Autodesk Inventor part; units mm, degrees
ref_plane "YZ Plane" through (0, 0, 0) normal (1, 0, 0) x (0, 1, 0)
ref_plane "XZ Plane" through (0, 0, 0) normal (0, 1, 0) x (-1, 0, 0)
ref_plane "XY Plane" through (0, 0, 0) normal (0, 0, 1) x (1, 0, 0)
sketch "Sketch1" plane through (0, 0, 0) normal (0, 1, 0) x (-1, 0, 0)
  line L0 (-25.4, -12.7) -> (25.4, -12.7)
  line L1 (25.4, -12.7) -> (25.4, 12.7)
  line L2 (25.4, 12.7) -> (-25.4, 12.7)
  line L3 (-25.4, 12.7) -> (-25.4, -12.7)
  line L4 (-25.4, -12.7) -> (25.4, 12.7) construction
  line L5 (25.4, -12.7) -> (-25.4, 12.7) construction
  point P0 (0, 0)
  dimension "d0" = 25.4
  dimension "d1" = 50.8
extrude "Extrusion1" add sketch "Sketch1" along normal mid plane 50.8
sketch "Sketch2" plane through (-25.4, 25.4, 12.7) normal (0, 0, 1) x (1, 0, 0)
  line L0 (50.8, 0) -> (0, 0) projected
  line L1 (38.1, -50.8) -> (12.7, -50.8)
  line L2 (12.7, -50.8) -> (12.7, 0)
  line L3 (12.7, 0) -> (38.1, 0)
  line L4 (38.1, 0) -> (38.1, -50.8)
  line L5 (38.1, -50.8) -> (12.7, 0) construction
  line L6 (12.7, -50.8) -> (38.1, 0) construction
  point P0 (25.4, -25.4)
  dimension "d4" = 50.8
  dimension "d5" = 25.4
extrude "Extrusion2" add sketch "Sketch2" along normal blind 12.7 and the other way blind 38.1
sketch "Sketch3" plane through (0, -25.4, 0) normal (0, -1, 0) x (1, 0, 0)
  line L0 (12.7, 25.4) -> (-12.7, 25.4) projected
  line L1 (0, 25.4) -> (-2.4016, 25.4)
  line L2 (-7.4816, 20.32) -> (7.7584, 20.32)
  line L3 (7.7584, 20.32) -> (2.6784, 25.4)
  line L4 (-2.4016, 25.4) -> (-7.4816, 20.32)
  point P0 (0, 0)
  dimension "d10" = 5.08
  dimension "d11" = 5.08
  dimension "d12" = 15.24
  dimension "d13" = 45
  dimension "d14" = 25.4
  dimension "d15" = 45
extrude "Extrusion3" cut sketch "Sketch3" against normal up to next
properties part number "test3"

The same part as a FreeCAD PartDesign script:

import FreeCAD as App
import Part
import Sketcher

V = App.Vector
Q = App.Units.Quantity


def add_polygon(sketch, points):
    """Adds a closed chain of lines whose ends are joined by coincident constraints."""
    first, n = sketch.GeometryCount, len(points)
    for a, b in zip(points, points[1:] + points[:1]):
        sketch.addGeometry(Part.LineSegment(App.Vector(*a, 0), App.Vector(*b, 0)), False)
    for i in range(n):
        sketch.addConstraint(Sketcher.Constraint("Coincident", first + i, 2, first + (i + 1) % n, 1))

doc = App.newDocument("Part")
body = doc.addObject("PartDesign::Body", "Body")

# Sketch on XZ plane
sketch1 = body.newObject("Sketcher::SketchObject", "Sketch")
sketch1.AttachmentSupport = (doc.getObject("XZ_Plane"), [""])
sketch1.MapMode = "FlatFace"
add_polygon(sketch1, [(25, 13), (25, -13), (-25, -13), (-25, 13)])  # lines 0-3
sketch1.addConstraint(Sketcher.Constraint("Vertical", 0))
sketch1.addConstraint(Sketcher.Constraint("Horizontal", 1))
sketch1.addConstraint(Sketcher.Constraint("Vertical", 2))
sketch1.addConstraint(Sketcher.Constraint("Horizontal", 3))
sketch1.addConstraint(Sketcher.Constraint("Symmetric", 0, 2, 2, 2, -1, 1))
sketch1.addConstraint(Sketcher.Constraint("DistanceX", 1, 2, 1, 1, Q("2 in")))
sketch1.addConstraint(Sketcher.Constraint("DistanceY", 0, 2, 0, 1, Q("1 in")))
pad1 = body.newObject("PartDesign::Pad", "Pad")
pad1.Profile = sketch1
pad1.Length = Q("2 in")
pad1.Midplane = True

# Sketch on XY plane
sketch2 = body.newObject("Sketcher::SketchObject", "Sketch001")
sketch2.AttachmentSupport = (doc.getObject("XY_Plane"), [""])
sketch2.MapMode = "FlatFace"
sketch2.AttachmentOffset = App.Placement(V(0, 0, 0.5 * 25.4), App.Rotation())
add_polygon(sketch2, [(13, -25), (13, 25), (-13, 25), (-13, -25)])  # lines 0-3
sketch2.addConstraint(Sketcher.Constraint("Vertical", 0))
sketch2.addConstraint(Sketcher.Constraint("Horizontal", 1))
sketch2.addConstraint(Sketcher.Constraint("Vertical", 2))
sketch2.addConstraint(Sketcher.Constraint("Horizontal", 3))
sketch2.addConstraint(Sketcher.Constraint("Symmetric", 0, 2, 2, 2, -1, 1))
sketch2.addConstraint(Sketcher.Constraint("DistanceX", 1, 2, 1, 1, Q("1 in")))
sketch2.addConstraint(Sketcher.Constraint("DistanceY", 0, 1, 0, 2, Q("2 in")))
pad2 = body.newObject("PartDesign::Pad", "Pad001")
pad2.Profile = sketch2
pad2.Type = "TwoLengths"
pad2.Length = Q("0.5 in")
pad2.Length2 = Q("1.5 in")

# Sketch on XZ plane
sketch3 = body.newObject("Sketcher::SketchObject", "Sketch002")
sketch3.AttachmentSupport = (doc.getObject("XZ_Plane"), [""])
sketch3.MapMode = "FlatFace"
sketch3.AttachmentOffset = App.Placement(V(0, 0, 1 * 25.4), App.Rotation())
add_polygon(sketch3, [(8, 20), (3, 25), (-2, 25), (-7, 20)])  # lines 0-3
sketch3.addConstraint(Sketcher.Constraint("Horizontal", 1))
sketch3.addConstraint(Sketcher.Constraint("Horizontal", 3))
sketch3.addConstraint(Sketcher.Constraint("Perpendicular", 0, 2))
sketch3.addConstraint(Sketcher.Constraint("Equal", 0, 2))
sketch3.addConstraint(Sketcher.Constraint("DistanceX", 1, 2, 1, 1, Q("0.2 in")))
sketch3.addConstraint(Sketcher.Constraint("DistanceX", 3, 1, 3, 2, Q("0.6 in")))
sketch3.addConstraint(Sketcher.Constraint("DistanceY", -1, 1, 0, 2, Q("1 in")))
sketch3.addConstraint(Sketcher.Constraint("DistanceX", -1, 1, 0, 2, Q("2.6784 mm")))
pocket1 = body.newObject("PartDesign::Pocket", "Pocket")
pocket1.Profile = sketch3
pocket1.Type = "UpToFirst"

doc.recompute()
